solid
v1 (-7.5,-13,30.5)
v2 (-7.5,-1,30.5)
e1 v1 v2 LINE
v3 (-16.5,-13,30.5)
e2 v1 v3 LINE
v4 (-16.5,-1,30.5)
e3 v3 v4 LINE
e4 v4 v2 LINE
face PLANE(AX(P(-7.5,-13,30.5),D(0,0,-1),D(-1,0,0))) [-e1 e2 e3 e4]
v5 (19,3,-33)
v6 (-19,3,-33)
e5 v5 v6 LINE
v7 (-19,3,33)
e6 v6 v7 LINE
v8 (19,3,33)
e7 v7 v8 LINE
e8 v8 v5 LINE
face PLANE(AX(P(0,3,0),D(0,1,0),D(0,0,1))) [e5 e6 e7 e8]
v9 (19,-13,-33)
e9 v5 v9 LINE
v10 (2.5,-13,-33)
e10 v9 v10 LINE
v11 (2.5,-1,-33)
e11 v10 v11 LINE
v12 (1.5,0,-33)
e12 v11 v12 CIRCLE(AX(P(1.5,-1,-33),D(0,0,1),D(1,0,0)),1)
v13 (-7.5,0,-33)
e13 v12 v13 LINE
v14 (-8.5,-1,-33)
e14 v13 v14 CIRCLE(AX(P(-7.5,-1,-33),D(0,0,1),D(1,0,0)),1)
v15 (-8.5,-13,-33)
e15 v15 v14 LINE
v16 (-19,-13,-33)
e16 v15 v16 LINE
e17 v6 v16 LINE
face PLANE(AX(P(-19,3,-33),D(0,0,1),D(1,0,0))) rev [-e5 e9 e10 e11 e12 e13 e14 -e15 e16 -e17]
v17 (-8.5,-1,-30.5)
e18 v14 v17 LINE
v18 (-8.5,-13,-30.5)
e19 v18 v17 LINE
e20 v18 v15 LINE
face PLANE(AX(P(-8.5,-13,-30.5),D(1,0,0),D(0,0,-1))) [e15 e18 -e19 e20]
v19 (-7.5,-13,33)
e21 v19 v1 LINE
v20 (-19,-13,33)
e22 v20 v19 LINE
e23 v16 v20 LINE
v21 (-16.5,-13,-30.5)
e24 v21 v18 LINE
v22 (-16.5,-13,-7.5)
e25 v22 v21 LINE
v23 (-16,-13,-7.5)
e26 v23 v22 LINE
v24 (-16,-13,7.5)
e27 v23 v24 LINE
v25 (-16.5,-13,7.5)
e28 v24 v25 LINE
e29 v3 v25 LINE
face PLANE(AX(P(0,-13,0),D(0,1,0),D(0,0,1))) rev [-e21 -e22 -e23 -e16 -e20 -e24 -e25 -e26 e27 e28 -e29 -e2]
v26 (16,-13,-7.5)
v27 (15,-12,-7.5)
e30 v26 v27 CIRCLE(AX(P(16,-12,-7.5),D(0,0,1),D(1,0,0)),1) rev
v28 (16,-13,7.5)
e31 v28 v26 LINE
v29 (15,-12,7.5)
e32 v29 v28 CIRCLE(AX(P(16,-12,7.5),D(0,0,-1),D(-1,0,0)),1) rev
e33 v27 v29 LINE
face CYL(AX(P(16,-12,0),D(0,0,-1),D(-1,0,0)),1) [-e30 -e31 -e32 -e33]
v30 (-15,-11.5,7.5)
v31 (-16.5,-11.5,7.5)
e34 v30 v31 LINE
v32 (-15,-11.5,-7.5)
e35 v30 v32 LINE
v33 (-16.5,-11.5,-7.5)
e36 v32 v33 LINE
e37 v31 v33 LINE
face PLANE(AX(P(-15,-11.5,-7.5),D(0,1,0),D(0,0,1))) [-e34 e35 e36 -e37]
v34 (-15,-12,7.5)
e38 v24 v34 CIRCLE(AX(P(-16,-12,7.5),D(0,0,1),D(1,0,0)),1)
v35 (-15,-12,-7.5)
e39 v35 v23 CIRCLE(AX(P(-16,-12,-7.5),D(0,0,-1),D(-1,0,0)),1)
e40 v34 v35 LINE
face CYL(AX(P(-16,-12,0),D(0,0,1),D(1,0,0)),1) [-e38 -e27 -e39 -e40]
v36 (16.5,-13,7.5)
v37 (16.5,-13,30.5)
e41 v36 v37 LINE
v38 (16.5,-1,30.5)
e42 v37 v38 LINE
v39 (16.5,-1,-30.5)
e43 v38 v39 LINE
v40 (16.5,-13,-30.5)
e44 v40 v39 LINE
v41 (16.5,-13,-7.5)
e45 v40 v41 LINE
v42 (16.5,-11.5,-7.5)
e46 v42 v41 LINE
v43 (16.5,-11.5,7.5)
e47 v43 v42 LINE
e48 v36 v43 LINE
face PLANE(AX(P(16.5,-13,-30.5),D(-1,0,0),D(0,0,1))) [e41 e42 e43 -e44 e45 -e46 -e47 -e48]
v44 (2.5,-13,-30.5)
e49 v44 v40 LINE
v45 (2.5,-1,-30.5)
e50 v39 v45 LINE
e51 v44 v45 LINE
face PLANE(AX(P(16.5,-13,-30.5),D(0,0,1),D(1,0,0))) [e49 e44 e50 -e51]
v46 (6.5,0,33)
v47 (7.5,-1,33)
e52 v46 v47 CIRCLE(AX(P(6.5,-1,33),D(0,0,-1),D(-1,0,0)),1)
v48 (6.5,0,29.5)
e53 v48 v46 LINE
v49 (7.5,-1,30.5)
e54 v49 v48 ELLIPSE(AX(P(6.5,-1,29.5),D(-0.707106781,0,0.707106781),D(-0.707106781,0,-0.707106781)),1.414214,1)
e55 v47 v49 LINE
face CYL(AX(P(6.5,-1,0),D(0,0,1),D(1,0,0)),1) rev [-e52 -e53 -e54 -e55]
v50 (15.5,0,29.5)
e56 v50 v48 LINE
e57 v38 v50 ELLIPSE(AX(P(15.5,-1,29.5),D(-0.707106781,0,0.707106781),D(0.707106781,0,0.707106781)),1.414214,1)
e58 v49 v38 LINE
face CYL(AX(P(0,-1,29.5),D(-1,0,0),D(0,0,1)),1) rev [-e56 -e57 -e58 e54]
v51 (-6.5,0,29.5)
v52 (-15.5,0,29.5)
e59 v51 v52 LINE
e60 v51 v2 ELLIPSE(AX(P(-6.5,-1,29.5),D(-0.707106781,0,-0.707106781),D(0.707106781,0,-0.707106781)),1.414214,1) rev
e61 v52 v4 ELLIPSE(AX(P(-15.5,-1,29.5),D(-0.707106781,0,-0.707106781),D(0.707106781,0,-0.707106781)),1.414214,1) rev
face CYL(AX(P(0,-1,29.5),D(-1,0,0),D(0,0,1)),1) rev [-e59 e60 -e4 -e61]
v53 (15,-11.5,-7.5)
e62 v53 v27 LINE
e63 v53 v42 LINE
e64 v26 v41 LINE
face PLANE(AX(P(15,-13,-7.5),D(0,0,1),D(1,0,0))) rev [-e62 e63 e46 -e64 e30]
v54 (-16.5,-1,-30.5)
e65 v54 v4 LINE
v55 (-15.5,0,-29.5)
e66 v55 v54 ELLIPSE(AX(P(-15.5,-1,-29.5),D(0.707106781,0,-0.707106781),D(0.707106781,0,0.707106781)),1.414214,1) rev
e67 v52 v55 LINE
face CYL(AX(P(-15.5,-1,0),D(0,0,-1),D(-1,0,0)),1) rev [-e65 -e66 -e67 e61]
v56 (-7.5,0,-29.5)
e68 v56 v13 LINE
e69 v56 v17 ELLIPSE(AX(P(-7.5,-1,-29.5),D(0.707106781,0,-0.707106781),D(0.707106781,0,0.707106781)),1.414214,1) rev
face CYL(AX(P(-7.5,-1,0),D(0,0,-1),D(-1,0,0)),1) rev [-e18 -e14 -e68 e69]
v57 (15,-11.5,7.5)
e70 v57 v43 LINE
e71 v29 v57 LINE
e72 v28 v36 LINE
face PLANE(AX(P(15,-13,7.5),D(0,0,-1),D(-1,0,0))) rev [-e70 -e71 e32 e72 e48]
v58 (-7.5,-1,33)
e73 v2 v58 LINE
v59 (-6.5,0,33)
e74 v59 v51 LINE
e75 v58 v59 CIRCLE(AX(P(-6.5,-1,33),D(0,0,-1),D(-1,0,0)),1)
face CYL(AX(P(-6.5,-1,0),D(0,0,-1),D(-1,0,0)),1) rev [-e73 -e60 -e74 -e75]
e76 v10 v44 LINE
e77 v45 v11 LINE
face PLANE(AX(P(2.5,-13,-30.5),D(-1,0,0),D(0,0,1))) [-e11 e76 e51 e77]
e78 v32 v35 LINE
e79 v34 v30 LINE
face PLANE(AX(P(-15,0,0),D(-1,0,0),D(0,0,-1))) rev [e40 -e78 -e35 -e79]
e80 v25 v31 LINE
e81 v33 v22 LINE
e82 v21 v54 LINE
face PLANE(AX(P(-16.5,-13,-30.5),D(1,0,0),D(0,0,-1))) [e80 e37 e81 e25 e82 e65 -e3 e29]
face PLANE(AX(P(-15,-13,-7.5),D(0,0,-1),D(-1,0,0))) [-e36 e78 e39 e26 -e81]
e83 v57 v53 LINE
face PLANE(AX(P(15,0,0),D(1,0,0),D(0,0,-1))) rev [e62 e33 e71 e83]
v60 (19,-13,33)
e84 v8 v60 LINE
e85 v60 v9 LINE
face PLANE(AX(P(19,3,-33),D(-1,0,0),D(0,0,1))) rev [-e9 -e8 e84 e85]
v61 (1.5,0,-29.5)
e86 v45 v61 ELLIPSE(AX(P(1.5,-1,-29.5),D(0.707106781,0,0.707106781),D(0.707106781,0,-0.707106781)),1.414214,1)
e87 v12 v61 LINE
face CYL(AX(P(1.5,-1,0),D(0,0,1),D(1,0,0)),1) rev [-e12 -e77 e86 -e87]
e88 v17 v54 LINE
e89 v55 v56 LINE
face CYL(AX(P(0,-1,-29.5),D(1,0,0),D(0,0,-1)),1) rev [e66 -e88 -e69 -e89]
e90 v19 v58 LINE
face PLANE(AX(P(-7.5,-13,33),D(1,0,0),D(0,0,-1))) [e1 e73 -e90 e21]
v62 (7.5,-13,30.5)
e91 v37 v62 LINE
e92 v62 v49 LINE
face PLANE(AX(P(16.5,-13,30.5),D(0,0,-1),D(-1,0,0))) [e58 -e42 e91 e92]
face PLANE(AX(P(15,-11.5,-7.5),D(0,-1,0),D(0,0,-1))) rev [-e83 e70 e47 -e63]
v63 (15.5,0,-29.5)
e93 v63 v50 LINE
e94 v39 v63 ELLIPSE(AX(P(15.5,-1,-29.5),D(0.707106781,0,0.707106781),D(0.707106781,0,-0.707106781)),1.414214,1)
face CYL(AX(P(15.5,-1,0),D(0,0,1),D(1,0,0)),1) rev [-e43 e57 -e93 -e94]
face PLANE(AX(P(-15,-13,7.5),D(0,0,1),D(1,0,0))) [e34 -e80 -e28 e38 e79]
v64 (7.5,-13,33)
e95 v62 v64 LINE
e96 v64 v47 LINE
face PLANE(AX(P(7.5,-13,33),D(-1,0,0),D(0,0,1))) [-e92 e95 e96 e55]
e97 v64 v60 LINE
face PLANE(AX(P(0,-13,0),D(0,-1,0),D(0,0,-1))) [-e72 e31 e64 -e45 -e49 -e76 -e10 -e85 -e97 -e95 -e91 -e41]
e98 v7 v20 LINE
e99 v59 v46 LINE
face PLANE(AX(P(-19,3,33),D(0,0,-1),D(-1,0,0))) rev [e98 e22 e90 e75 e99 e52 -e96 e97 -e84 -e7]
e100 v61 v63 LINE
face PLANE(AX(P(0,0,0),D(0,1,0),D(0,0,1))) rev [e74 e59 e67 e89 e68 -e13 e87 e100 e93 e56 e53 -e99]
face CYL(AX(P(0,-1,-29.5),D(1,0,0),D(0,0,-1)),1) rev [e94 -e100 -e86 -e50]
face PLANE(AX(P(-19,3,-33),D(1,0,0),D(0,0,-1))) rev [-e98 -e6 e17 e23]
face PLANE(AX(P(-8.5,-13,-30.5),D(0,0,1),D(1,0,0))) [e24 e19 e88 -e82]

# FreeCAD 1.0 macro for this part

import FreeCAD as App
import Part
import Sketcher
from FreeCAD import Vector
Q = App.Units.Quantity


def edges_at(feature, points):
    """Names of the edges that pass closest to the given points."""
    edges = feature.Shape.Edges
    near = lambda p: min(range(len(edges)), key=lambda i: edges[i].distToShape(Part.Vertex(*p))[0])
    return sorted({f"Edge{near(p) + 1}" for p in points})


def add_polygon(sketch, points):
    """Adds a closed chain of lines whose ends are joined by coincident constraints."""
    first, n = sketch.GeometryCount, len(points)
    for a, b in zip(points, points[1:] + points[:1]):
        sketch.addGeometry(Part.LineSegment(App.Vector(*a, 0), App.Vector(*b, 0)), False)
    for i in range(n):
        sketch.addConstraint(Sketcher.Constraint("Coincident", first + i, 2, first + (i + 1) % n, 1))

doc = App.newDocument("Part")
body = doc.addObject("PartDesign::Body", "Body")

# Sketch on XZ plane
sketch1 = body.newObject("Sketcher::SketchObject", "Sketch")
sketch1.AttachmentSupport = (doc.getObject("XZ_Plane"), [""])
sketch1.MapMode = "FlatFace"
add_polygon(sketch1, [(-19, -33), (-19, 33), (19, 33), (19, -33)])  # lines 0-3
sketch1.addConstraint([
    Sketcher.Constraint("Vertical", 0),
    Sketcher.Constraint("Horizontal", 1),
    Sketcher.Constraint("Vertical", 2),
    Sketcher.Constraint("Horizontal", 3),
    Sketcher.Constraint("Symmetric", 0, 2, 2, 2, -1, 1),
    Sketcher.Constraint("DistanceX", 1, 1, 1, 2, Q("38 mm")),
    Sketcher.Constraint("DistanceY", 0, 1, 0, 2, Q("66 mm")),
])
pad1 = body.newObject("PartDesign::Pad", "Pad")
pad1.Profile = sketch1
pad1.Length = 3
pad1.Reversed = True

# Sketch on XZ plane
sketch2 = body.newObject("Sketcher::SketchObject", "Sketch001")
sketch2.AttachmentSupport = (doc.getObject("XZ_Plane"), [""])
sketch2.MapMode = "FlatFace"
add_polygon(sketch2, [(2.5, -33), (2.5, -30.5), (16.5, -30.5), (16.5, 30.5), (7.5, 30.5), (7.5, 33), (19, 33), (19, -33)])  # lines 0-7
add_polygon(sketch2, [(-19, -33), (-19, 33), (-7.5, 33), (-7.5, 30.5), (-16.5, 30.5), (-16.5, -30.5), (-8.5, -30.5), (-8.5, -33)])  # lines 8-15
sketch2.addConstraint([
    Sketcher.Constraint("Vertical", 0),
    Sketcher.Constraint("Horizontal", 1),
    Sketcher.Constraint("Vertical", 2),
    Sketcher.Constraint("Horizontal", 3),
    Sketcher.Constraint("Vertical", 4),
    Sketcher.Constraint("Horizontal", 5),
    Sketcher.Constraint("Vertical", 6),
    Sketcher.Constraint("Horizontal", 7),
    Sketcher.Constraint("Vertical", 8),
    Sketcher.Constraint("Horizontal", 9),
    Sketcher.Constraint("Vertical", 10),
    Sketcher.Constraint("Horizontal", 11),
    Sketcher.Constraint("Vertical", 12),
    Sketcher.Constraint("Horizontal", 13),
    Sketcher.Constraint("Vertical", 14),
    Sketcher.Constraint("Horizontal", 15),
    Sketcher.Constraint("Symmetric", 6, 2, 8, 2, -1, 1),
    Sketcher.Constraint("Symmetric", 1, 2, 11, 2, -1, 1),
    Sketcher.Constraint("Symmetric", 4, 2, 9, 2, -2),
    Sketcher.Constraint("Horizontal", 3, 2, 10, 2),
    Sketcher.Constraint("Horizontal", 1, 2, 12, 2),
    Sketcher.Constraint("Horizontal", 7, 2, 14, 2),
    Sketcher.Constraint("DistanceX", 1, 1, 1, 2, Q("14 mm")),
    Sketcher.Constraint("DistanceX", 3, 2, 3, 1, Q("9 mm")),
    Sketcher.Constraint("DistanceX", 13, 1, 13, 2, Q("8 mm")),
    Sketcher.Constraint("DistanceY", 2, 1, 2, 2, Q("61 mm")),
    Sketcher.Constraint("DistanceY", 6, 2, 6, 1, Q("66 mm")),
    Sketcher.Constraint("DistanceX", 5, 1, 5, 2, Q("11.5 mm")),
    Sketcher.Constraint("DistanceX", -1, 1, 5, 2, Q("19 mm")),
])
pad2 = body.newObject("PartDesign::Pad", "Pad001")
pad2.Profile = sketch2
pad2.Length = 13

# Sketch on YZ plane
sketch3 = body.newObject("Sketcher::SketchObject", "Sketch002")
sketch3.AttachmentSupport = (doc.getObject("YZ_Plane"), [""])
sketch3.MapMode = "FlatFace"
sketch3.AttachmentOffset = App.Placement(Vector(0, 0, 16.5), App.Rotation())
add_polygon(sketch3, [(-11.5, -7.5), (-13, -7.5), (-13, 7.5), (-11.5, 7.5)])  # lines 0-3
sketch3.addConstraint([
    Sketcher.Constraint("Horizontal", 0),
    Sketcher.Constraint("Vertical", 1),
    Sketcher.Constraint("Horizontal", 2),
    Sketcher.Constraint("Vertical", 3),
    Sketcher.Constraint("DistanceY", 1, 1, 1, 2, Q("15 mm")),
    Sketcher.Constraint("DistanceX", 0, 2, 0, 1, Q("1.5 mm")),
    Sketcher.Constraint("DistanceX", 0, 2, -1, 1, Q("13 mm")),
    Sketcher.Constraint("DistanceY", 0, 2, -1, 1, Q("7.5 mm")),
])
pad3 = body.newObject("PartDesign::Pad", "Pad002")
pad3.Profile = sketch3
pad3.Length = 1.5
pad3.Reversed = True
doc.recompute()

mirrored = body.newObject("PartDesign::Mirrored", "Mirrored")
mirrored.Originals = [pad3]
mirrored.MirrorPlane = (doc.getObject("YZ_Plane"), [""])
body.Tip = mirrored
doc.recompute()

fillet = body.newObject("PartDesign::Fillet", "Fillet")
fillet.Base = (mirrored, edges_at(mirrored, [(15, -13, 0), (-15, -13, 0)]))
fillet.Radius = 1
doc.recompute()

fillet2 = body.newObject("PartDesign::Fillet", "Fillet001")
fillet2.Base = (fillet, edges_at(fillet, [
    (-8.5, 0, -31.75),
    (2.5, 0, -31.75),
    (-12.5, 0, -30.5),
    (9.5, 0, -30.5),
    (16.5, 0, 0),
    (7.5, 0, 31.75),
    (12, 0, 30.5),
    (-16.5, 0, 0),
    (-12, 0, 30.5),
    (-7.5, 0, 31.75),
]))
fillet2.Radius = 1

doc.recompute()
